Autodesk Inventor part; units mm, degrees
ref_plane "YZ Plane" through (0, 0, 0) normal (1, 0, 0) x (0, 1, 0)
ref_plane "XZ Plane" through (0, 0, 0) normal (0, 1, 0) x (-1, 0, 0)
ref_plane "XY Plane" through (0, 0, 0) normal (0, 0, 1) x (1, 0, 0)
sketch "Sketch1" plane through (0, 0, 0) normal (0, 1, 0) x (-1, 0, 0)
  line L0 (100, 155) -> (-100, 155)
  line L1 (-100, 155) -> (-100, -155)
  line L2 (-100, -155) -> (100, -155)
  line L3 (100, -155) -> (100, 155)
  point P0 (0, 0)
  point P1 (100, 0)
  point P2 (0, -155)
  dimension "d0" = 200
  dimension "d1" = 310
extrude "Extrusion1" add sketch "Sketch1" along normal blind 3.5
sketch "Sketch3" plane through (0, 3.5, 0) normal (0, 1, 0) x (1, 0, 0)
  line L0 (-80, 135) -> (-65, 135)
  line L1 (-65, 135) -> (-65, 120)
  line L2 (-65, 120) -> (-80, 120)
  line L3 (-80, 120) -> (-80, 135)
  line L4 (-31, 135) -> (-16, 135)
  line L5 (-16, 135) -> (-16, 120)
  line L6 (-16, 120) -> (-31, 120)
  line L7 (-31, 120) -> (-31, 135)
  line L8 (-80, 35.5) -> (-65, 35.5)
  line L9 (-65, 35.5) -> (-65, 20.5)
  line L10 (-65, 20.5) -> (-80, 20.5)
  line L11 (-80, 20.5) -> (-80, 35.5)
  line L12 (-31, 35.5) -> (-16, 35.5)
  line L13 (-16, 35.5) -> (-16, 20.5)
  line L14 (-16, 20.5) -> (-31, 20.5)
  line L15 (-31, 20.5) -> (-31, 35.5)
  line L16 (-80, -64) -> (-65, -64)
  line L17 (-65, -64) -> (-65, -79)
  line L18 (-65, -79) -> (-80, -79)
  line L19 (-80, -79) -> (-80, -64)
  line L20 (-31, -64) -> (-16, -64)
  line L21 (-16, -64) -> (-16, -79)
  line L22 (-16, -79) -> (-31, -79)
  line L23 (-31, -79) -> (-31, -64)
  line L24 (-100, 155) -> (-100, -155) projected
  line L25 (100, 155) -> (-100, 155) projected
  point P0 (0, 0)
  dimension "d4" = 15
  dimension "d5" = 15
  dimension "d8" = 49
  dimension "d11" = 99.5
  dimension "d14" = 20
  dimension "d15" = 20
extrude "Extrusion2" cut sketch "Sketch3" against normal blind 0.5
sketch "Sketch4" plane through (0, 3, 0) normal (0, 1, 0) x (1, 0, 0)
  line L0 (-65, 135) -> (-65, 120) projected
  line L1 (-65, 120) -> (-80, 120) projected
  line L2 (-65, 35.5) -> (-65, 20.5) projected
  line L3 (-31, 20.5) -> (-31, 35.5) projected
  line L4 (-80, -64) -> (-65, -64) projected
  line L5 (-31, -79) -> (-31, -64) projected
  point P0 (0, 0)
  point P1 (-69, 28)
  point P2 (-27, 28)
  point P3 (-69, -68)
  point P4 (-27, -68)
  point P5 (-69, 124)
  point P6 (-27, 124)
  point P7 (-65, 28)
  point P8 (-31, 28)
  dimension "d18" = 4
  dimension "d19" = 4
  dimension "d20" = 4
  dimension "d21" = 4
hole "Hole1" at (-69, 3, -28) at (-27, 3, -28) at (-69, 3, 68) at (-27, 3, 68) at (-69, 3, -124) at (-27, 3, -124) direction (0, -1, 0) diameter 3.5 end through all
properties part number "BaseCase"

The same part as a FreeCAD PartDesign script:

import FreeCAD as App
import Part
import Sketcher
from FreeCAD import Vector
Q = App.Units.Quantity


def add_polygon(sketch, points):
    """Adds a closed chain of lines whose ends are joined by coincident constraints."""
    first, n = sketch.GeometryCount, len(points)
    for a, b in zip(points, points[1:] + points[:1]):
        sketch.addGeometry(Part.LineSegment(App.Vector(*a, 0), App.Vector(*b, 0)), False)
    for i in range(n):
        sketch.addConstraint(Sketcher.Constraint("Coincident", first + i, 2, first + (i + 1) % n, 1))

doc = App.newDocument("Part")
body = doc.addObject("PartDesign::Body", "Body")

# Sketch on XZ plane
sketch1 = doc.addObject("Sketcher::SketchObject", "Sketch")
body.addObject(sketch1)
sketch1.AttachmentSupport = (doc.XZ_Plane, [""])
sketch1.MapMode = "FlatFace"
add_polygon(sketch1, [(-100, -155), (-100, 155), (100, 155), (100, -155)])  # lines 0-3
sketch1.addConstraint([
    Sketcher.Constraint("Vertical", 0),
    Sketcher.Constraint("Horizontal", 1),
    Sketcher.Constraint("Vertical", 2),
    Sketcher.Constraint("Horizontal", 3),
    Sketcher.Constraint("Symmetric", 0, 2, 2, 2, -1, 1),
    Sketcher.Constraint("DistanceX", 1, 1, 1, 2, Q("200 mm")),
    Sketcher.Constraint("DistanceY", 0, 1, 0, 2, Q("310 mm")),
])
pad1 = doc.addObject("PartDesign::Pad", "Pad")
body.addObject(pad1)
pad1.Profile = sketch1
pad1.Length = 3.5
pad1.Reversed = True

# Sketch on XZ plane
sketch2 = doc.addObject("Sketcher::SketchObject", "Sketch001")
body.addObject(sketch2)
sketch2.AttachmentSupport = (doc.XZ_Plane, [""])
sketch2.MapMode = "FlatFace"
sketch2.AttachmentOffset = App.Placement(Vector(0, 0, -3.5), App.Rotation())
add_polygon(sketch2, [(-65, -135), (-80, -135), (-80, -120), (-65, -120)])  # lines 0-3
add_polygon(sketch2, [(-16, -135), (-31, -135), (-31, -120), (-16, -120)])  # lines 4-7
add_polygon(sketch2, [(-65, -36), (-80, -36), (-80, -20), (-65, -20)])  # lines 8-11
add_polygon(sketch2, [(-16, -36), (-31, -36), (-31, -20), (-16, -20)])  # lines 12-15
add_polygon(sketch2, [(-65, 64), (-80, 64), (-80, 79), (-65, 79)])  # lines 16-19
add_polygon(sketch2, [(-16, 64), (-31, 64), (-31, 79), (-16, 79)])  # lines 20-23
sketch2.addConstraint([
    Sketcher.Constraint("Horizontal", 0),
    Sketcher.Constraint("Vertical", 1),
    Sketcher.Constraint("Horizontal", 2),
    Sketcher.Constraint("Vertical", 3),
    Sketcher.Constraint("Horizontal", 4),
    Sketcher.Constraint("Vertical", 5),
    Sketcher.Constraint("Horizontal", 6),
    Sketcher.Constraint("Vertical", 7),
    Sketcher.Constraint("Horizontal", 8),
    Sketcher.Constraint("Vertical", 9),
    Sketcher.Constraint("Horizontal", 10),
    Sketcher.Constraint("Vertical", 11),
    Sketcher.Constraint("Horizontal", 12),
    Sketcher.Constraint("Vertical", 13),
    Sketcher.Constraint("Horizontal", 14),
    Sketcher.Constraint("Vertical", 15),
    Sketcher.Constraint("Horizontal", 16),
    Sketcher.Constraint("Vertical", 17),
    Sketcher.Constraint("Horizontal", 18),
    Sketcher.Constraint("Vertical", 19),
    Sketcher.Constraint("Horizontal", 20),
    Sketcher.Constraint("Vertical", 21),
    Sketcher.Constraint("Horizontal", 22),
    Sketcher.Constraint("Vertical", 23),
    Sketcher.Constraint("Horizontal", 3, 2, 4, 2),
    Sketcher.Constraint("Horizontal", 2, 2, 5, 2),
    Sketcher.Constraint("Horizontal", 11, 2, 12, 2),
    Sketcher.Constraint("Horizontal", 10, 2, 13, 2),
    Sketcher.Constraint("Horizontal", 19, 2, 20, 2),
    Sketcher.Constraint("Horizontal", 18, 2, 21, 2),
    Sketcher.Constraint("Vertical", 1, 2, 8, 2),
    Sketcher.Constraint("Vertical", 3, 2, 10, 2),
    Sketcher.Constraint("Vertical", 5, 2, 12, 2),
    Sketcher.Constraint("Vertical", 7, 2, 14, 2),
    Sketcher.Constraint("Vertical", 9, 2, 16, 2),
    Sketcher.Constraint("Vertical", 11, 2, 18, 2),
    Sketcher.Constraint("Vertical", 13, 2, 20, 2),
    Sketcher.Constraint("Vertical", 15, 2, 22, 2),
    Sketcher.Constraint("Equal", 2, 4),
    Sketcher.Constraint("Equal", 22, 1),
    Sketcher.Constraint("Equal", 7, 9),
    Sketcher.Constraint("Equal", 15, 17),
    Sketcher.Constraint("DistanceX", 0, 2, 0, 1, Q("15 mm")),
    Sketcher.Constraint("DistanceX", 0, 2, 4, 2, Q("49 mm")),
    Sketcher.Constraint("DistanceY", 0, 2, 8, 2, Q("99.5 mm")),
    Sketcher.Constraint("DistanceY", 8, 2, 16, 2, Q("99.5 mm")),
    Sketcher.Constraint("DistanceX", 0, 2, -1, 1, Q("80 mm")),
    Sketcher.Constraint("DistanceY", 0, 2, -1, 1, Q("135 mm")),
])
pocket1 = doc.addObject("PartDesign::Pocket", "Pocket")
body.addObject(pocket1)
pocket1.Profile = sketch2
pocket1.Length = 0.5
pocket1.Reversed = True

# Sketch on XZ plane
sketch3 = doc.addObject("Sketcher::SketchObject", "Sketch002")
body.addObject(sketch3)
sketch3.AttachmentSupport = (doc.XZ_Plane, [""])
sketch3.MapMode = "FlatFace"
sketch3.AttachmentOffset = App.Placement(Vector(0, 0, -3), App.Rotation())
sketch3.addGeometry([
    Part.Circle(Vector(-69, -28, 0), Vector(0, 0, 1), 1.8),  # 0
    Part.Circle(Vector(-27, -28, 0), Vector(0, 0, 1), 1.8),  # 1
    Part.Circle(Vector(-69, 68, 0), Vector(0, 0, 1), 1.8),  # 2
    Part.Circle(Vector(-27, 68, 0), Vector(0, 0, 1), 1.8),  # 3
    Part.Circle(Vector(-69, -124, 0), Vector(0, 0, 1), 1.8),  # 4
    Part.Circle(Vector(-27, -124, 0), Vector(0, 0, 1), 1.8),  # 5
], False)
sketch3.addConstraint([
    Sketcher.Constraint("Equal", 0, 1),
    Sketcher.Constraint("Equal", 1, 2),
    Sketcher.Constraint("Equal", 2, 3),
    Sketcher.Constraint("Equal", 3, 4),
    Sketcher.Constraint("Equal", 4, 5),
    Sketcher.Constraint("Horizontal", 0, 3, 1, 3),
    Sketcher.Constraint("Horizontal", 2, 3, 3, 3),
    Sketcher.Constraint("Horizontal", 4, 3, 5, 3),
    Sketcher.Constraint("Vertical", 0, 3, 2, 3),
    Sketcher.Constraint("Vertical", 1, 3, 3, 3),
    Sketcher.Constraint("Vertical", 2, 3, 4, 3),
    Sketcher.Constraint("Vertical", 3, 3, 5, 3),
    Sketcher.Constraint("Diameter", 0, Q("3.5 mm")),
    Sketcher.Constraint("DistanceX", 0, 3, -1, 1, Q("69 mm")),
    Sketcher.Constraint("DistanceY", 0, 3, -1, 1, Q("28 mm")),
    Sketcher.Constraint("DistanceX", 1, 3, -1, 1, Q("27 mm")),
    Sketcher.Constraint("DistanceY", -1, 1, 2, 3, Q("68 mm")),
    Sketcher.Constraint("DistanceY", 4, 3, -1, 1, Q("124 mm")),
])
doc.recompute()
hole = doc.addObject("PartDesign::Hole", "Hole")
body.addObject(hole)
hole.Profile = sketch3
hole.ThreadType = "None"
hole.Diameter = 3.5
hole.DepthType = "ThroughAll"
hole.Reversed = True

doc.recompute()
